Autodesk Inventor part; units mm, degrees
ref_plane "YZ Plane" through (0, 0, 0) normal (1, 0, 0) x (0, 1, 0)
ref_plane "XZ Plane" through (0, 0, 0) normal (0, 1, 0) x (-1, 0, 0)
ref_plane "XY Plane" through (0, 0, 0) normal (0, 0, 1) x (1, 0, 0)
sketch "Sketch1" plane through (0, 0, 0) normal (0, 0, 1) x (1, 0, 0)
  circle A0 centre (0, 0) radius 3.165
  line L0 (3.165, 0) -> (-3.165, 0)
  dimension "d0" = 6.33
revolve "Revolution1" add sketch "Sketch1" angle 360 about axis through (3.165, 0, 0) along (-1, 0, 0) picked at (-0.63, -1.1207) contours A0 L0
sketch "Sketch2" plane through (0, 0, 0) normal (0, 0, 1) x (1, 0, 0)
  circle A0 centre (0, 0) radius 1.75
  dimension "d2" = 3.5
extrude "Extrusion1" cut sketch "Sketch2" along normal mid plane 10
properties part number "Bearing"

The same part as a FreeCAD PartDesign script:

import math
import FreeCAD as App
import Part
import Sketcher

doc = App.newDocument("Part")
body = doc.addObject("PartDesign::Body", "Body")

sketch1 = body.newObject("Sketcher::SketchObject", "Sketch")
sketch1.AttachmentSupport = (doc.getObject("XY_Plane"), [""])
sketch1.MapMode = "FlatFace"
sketch1.addGeometry([
    Part.ArcOfCircle(Part.Circle(App.Vector(0, 0, 0), App.Vector(0, 0, 1), 3.2), math.radians(180), math.radians(360)),
    Part.LineSegment(App.Vector(3.2, 0, 0), App.Vector(-3.2, 0, 0)),
], False)
sketch1.addConstraint([
    Sketcher.Constraint("Coincident", 0, 1, 1, 2),
    Sketcher.Constraint("Coincident", 1, 1, 0, 2),
    Sketcher.Constraint("Horizontal", 1),
    Sketcher.Constraint("Coincident", 0, 3, -1, 1),
    Sketcher.Constraint("PointOnObject", 0, 1, -1),
    Sketcher.Constraint("Radius", 0, 3.165),
])
revolution = body.newObject("PartDesign::Revolution", "Revolution")
revolution.Profile = sketch1
revolution.ReferenceAxis = (sketch1, ["H_Axis"])
revolution.Angle = 360

sketch2 = body.newObject("Sketcher::SketchObject", "Sketch001")
sketch2.AttachmentSupport = (doc.getObject("XY_Plane"), [""])
sketch2.MapMode = "FlatFace"
sketch2.addGeometry(Part.Circle(App.Vector(0, 0, 0), App.Vector(0, 0, 1), 1.8), False)
sketch2.addConstraint([
    Sketcher.Constraint("Coincident", 0, 3, -1, 1),
    Sketcher.Constraint("Diameter", 0, 3.5),
])
pocket1 = body.newObject("PartDesign::Pocket", "Pocket")
pocket1.Profile = sketch2
pocket1.Length = 10
pocket1.Midplane = True

doc.recompute()
